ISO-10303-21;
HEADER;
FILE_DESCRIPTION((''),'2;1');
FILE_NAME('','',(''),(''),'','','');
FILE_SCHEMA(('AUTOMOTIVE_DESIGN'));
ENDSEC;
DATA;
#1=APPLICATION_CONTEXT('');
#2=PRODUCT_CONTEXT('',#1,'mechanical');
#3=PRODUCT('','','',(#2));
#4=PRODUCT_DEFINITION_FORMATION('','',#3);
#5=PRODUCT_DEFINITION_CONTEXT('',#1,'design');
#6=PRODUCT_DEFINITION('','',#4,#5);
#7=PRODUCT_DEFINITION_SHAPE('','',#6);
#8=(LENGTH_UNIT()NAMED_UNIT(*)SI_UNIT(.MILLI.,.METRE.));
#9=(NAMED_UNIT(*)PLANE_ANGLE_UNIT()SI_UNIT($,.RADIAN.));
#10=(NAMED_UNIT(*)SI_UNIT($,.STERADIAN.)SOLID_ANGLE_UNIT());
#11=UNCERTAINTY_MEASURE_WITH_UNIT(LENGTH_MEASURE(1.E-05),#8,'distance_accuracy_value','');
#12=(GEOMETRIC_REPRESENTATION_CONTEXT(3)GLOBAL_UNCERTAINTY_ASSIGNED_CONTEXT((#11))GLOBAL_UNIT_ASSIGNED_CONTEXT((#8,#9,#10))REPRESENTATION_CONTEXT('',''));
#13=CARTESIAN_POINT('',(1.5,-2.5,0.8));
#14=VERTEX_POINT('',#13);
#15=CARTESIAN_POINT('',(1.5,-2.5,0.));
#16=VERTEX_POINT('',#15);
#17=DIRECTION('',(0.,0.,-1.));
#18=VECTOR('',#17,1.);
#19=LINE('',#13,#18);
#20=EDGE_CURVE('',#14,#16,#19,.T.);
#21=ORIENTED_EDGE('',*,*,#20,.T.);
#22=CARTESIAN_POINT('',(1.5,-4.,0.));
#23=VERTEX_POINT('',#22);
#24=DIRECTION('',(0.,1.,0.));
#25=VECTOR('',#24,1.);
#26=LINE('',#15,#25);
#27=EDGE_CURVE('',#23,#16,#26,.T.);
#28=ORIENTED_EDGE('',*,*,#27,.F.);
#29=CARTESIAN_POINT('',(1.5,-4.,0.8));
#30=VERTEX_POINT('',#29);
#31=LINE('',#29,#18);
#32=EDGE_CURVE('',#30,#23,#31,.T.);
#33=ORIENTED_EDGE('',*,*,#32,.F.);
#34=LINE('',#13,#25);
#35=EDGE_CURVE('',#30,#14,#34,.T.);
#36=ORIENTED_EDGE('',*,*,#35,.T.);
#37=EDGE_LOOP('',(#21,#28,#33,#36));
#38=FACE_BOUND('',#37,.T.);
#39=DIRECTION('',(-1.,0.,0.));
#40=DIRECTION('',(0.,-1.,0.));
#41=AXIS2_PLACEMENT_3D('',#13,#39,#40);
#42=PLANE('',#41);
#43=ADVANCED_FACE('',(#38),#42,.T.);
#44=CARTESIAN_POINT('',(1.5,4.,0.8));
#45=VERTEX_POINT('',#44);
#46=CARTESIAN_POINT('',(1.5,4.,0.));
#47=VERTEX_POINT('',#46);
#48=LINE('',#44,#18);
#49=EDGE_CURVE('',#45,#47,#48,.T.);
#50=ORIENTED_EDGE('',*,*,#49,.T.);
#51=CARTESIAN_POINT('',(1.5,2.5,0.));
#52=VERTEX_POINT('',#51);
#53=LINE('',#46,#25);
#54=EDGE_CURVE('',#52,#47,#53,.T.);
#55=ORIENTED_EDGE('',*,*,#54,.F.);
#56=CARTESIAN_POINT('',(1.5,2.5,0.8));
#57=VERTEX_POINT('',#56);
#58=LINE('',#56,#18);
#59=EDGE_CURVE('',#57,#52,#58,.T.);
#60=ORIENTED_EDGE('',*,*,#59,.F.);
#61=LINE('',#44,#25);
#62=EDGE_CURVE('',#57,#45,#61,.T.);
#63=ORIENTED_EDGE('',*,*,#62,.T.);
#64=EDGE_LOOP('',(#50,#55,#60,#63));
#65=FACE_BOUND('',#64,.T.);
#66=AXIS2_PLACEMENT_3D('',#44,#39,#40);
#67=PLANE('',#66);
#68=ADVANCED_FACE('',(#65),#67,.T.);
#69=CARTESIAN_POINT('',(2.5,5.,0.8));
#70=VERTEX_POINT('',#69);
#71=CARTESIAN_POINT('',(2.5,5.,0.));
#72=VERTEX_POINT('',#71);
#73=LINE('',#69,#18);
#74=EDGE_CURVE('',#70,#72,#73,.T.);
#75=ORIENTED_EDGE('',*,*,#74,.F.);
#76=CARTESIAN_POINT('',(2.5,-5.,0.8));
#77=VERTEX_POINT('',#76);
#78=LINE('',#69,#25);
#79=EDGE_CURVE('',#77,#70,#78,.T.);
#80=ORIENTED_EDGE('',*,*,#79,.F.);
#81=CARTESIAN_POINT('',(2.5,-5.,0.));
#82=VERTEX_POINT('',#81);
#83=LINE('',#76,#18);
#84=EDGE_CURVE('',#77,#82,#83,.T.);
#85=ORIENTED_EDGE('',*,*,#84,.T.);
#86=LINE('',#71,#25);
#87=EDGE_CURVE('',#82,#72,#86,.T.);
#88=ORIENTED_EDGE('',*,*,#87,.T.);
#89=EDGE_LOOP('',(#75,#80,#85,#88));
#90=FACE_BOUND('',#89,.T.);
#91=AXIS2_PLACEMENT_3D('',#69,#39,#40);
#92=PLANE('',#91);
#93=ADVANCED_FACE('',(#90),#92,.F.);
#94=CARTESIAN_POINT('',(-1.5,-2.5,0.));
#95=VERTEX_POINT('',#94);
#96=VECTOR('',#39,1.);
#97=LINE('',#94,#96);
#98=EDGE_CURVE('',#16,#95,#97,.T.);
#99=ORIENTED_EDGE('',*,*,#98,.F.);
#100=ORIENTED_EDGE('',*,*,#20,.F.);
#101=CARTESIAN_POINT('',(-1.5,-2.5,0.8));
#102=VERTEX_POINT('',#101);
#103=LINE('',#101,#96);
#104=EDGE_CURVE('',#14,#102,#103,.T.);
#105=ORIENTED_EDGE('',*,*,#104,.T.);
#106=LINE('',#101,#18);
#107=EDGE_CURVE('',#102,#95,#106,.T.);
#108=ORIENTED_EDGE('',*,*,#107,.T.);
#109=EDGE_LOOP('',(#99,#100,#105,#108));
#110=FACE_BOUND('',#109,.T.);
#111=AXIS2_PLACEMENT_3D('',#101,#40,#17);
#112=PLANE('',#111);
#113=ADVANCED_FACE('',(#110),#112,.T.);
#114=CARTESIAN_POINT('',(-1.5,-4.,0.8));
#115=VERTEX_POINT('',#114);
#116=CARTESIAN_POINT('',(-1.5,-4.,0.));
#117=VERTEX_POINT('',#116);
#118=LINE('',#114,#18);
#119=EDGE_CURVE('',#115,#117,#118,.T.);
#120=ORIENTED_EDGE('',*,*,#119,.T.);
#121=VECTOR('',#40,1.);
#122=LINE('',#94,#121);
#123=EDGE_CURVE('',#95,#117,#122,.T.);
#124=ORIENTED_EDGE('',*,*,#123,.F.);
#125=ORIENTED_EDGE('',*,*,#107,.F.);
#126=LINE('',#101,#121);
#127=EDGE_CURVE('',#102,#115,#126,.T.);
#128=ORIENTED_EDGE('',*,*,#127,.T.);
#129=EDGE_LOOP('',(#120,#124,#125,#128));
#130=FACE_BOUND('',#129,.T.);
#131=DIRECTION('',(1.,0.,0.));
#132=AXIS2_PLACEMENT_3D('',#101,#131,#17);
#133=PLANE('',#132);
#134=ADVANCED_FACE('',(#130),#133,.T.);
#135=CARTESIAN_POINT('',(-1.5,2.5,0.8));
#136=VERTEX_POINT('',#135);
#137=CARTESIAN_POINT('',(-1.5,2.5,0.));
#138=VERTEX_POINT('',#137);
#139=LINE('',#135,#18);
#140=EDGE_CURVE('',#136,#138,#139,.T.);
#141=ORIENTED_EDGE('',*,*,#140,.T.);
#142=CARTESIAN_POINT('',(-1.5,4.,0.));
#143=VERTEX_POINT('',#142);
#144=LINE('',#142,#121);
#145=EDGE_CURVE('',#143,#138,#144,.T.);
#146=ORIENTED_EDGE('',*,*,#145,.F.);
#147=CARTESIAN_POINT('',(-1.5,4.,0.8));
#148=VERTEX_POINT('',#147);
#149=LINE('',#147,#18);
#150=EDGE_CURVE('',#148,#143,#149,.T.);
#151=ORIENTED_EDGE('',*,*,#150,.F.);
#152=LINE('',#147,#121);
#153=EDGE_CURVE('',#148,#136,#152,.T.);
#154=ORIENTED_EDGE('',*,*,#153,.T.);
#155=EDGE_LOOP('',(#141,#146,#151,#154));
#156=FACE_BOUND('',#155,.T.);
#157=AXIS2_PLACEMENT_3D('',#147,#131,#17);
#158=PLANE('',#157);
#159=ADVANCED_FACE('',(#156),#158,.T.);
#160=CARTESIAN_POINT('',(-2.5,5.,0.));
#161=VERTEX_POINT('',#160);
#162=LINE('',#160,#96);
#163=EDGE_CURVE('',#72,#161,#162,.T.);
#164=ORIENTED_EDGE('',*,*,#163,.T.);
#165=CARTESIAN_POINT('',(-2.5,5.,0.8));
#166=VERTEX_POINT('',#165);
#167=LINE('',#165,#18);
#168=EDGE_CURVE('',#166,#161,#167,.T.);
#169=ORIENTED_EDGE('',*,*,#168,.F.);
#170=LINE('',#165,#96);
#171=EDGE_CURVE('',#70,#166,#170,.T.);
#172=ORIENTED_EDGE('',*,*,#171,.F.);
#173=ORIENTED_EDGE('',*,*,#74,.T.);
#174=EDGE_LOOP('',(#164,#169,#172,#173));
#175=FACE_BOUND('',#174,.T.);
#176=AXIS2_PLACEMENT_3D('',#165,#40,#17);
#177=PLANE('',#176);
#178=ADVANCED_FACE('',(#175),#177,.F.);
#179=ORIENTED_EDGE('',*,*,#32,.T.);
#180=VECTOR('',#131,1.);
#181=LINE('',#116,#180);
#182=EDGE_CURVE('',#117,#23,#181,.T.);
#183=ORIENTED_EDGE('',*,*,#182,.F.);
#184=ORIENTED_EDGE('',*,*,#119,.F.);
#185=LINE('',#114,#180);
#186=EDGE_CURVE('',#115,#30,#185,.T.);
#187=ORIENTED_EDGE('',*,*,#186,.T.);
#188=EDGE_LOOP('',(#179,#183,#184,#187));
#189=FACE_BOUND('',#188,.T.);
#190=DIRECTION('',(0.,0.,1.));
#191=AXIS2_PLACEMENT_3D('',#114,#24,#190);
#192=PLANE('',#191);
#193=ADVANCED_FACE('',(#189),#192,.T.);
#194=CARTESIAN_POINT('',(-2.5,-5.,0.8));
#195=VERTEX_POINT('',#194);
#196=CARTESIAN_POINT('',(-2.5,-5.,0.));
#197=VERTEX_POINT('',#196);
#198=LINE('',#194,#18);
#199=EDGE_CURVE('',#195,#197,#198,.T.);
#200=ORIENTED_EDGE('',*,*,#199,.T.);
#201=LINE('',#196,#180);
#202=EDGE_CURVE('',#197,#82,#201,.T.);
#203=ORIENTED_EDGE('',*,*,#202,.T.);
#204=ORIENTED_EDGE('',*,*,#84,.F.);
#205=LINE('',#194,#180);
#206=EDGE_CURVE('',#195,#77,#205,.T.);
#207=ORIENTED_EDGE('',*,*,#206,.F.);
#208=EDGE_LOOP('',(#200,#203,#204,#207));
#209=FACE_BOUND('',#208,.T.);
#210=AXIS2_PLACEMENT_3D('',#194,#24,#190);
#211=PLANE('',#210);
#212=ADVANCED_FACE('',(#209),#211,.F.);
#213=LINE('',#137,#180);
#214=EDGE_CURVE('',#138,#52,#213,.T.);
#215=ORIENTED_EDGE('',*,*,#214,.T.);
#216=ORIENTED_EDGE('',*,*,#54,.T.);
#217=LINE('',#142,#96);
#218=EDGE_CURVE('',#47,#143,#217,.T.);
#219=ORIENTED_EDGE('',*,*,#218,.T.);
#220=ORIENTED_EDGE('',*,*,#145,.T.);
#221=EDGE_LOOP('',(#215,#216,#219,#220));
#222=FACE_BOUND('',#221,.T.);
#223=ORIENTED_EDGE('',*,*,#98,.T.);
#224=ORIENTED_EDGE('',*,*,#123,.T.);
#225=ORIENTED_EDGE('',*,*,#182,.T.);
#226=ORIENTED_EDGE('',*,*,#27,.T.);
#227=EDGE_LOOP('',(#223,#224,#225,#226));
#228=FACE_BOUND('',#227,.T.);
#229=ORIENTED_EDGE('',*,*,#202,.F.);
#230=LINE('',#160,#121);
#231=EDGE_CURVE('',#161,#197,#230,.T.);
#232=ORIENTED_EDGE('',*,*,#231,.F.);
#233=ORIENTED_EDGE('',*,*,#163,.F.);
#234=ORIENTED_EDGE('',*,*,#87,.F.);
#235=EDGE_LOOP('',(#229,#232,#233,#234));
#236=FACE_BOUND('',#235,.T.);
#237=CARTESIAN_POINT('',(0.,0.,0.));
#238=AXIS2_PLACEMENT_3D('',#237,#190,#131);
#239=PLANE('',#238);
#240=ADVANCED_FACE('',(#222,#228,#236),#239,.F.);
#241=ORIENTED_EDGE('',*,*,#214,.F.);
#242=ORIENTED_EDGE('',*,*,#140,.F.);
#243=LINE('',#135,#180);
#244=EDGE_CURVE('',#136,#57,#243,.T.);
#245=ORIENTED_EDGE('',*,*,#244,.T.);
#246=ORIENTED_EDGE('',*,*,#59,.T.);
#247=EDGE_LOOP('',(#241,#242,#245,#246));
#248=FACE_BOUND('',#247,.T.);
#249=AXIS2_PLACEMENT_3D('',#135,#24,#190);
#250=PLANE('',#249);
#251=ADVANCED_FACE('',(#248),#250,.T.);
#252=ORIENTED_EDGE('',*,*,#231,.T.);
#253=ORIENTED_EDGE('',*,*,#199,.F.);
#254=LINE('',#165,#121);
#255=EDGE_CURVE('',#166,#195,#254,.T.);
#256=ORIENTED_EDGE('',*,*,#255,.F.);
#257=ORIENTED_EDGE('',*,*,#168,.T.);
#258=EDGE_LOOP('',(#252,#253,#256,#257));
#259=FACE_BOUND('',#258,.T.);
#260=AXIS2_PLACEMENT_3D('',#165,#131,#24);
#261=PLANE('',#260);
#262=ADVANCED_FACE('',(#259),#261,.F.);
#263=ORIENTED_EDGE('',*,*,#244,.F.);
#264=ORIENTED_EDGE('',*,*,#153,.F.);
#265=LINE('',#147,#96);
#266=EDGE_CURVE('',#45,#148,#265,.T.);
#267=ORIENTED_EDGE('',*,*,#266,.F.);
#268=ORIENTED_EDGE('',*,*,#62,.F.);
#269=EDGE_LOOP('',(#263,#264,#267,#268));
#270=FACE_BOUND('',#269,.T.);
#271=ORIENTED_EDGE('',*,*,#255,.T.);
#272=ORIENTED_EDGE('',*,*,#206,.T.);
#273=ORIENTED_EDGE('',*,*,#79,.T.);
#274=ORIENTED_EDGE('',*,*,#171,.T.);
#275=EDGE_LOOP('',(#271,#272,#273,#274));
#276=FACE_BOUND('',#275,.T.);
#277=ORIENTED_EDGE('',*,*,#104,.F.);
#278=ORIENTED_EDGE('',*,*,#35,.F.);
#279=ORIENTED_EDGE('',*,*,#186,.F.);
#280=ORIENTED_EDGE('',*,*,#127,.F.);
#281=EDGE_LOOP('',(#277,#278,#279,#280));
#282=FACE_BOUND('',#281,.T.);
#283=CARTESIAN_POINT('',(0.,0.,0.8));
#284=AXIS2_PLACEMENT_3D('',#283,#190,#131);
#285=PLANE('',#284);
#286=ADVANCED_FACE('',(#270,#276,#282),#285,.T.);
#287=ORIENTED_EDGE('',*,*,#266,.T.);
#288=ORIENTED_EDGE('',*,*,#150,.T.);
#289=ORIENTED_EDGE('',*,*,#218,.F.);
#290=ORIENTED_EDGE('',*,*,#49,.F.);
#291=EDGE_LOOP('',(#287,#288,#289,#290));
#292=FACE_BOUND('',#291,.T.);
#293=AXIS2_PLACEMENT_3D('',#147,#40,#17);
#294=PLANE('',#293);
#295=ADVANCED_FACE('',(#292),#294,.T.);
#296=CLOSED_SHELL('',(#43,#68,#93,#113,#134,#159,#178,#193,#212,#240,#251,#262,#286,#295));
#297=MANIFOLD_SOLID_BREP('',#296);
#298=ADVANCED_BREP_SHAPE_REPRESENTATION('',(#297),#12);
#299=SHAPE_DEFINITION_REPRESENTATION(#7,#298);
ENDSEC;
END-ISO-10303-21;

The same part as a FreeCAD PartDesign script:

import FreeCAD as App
import Part
import Sketcher

V = App.Vector

doc = App.newDocument("Part")
body = doc.addObject("PartDesign::Body", "Body")

# Sketch on XY plane
sketch1 = body.newObject("Sketcher::SketchObject", "Sketch")
sketch1.AttachmentSupport = (doc.getObject("XY_Plane"), [""])
sketch1.MapMode = "FlatFace"
sketch1.addGeometry([
    Part.LineSegment(V(-2.5, 5, 0), V(-2.5, -5, 0)),  # 0
    Part.LineSegment(V(-2.5, -5, 0), V(2.5, -5, 0)),  # 1
    Part.LineSegment(V(2.5, -5, 0), V(2.5, 5, 0)),  # 2
    Part.LineSegment(V(2.5, 5, 0), V(-2.5, 5, 0)),  # 3
    Part.LineSegment(V(1.5, -4, 0), V(-1.5, -4, 0)),  # 4
    Part.LineSegment(V(-1.5, -4, 0), V(-1.5, -2.5, 0)),  # 5
    Part.LineSegment(V(-1.5, -2.5, 0), V(1.5, -2.5, 0)),  # 6
    Part.LineSegment(V(1.5, -2.5, 0), V(1.5, -4, 0)),  # 7
    Part.LineSegment(V(1.5, 2.5, 0), V(-1.5, 2.5, 0)),  # 8
    Part.LineSegment(V(-1.5, 2.5, 0), V(-1.5, 4, 0)),  # 9
    Part.LineSegment(V(-1.5, 4, 0), V(1.5, 4, 0)),  # 10
    Part.LineSegment(V(1.5, 4, 0), V(1.5, 2.5, 0)),  # 11
], False)
sketch1.addConstraint([
    Sketcher.Constraint("Coincident", 0, 2, 1, 1),
    Sketcher.Constraint("Coincident", 1, 2, 2, 1),
    Sketcher.Constraint("Coincident", 2, 2, 3, 1),
    Sketcher.Constraint("Coincident", 3, 2, 0, 1),
    Sketcher.Constraint("Coincident", 4, 2, 5, 1),
    Sketcher.Constraint("Coincident", 5, 2, 6, 1),
    Sketcher.Constraint("Coincident", 6, 2, 7, 1),
    Sketcher.Constraint("Coincident", 7, 2, 4, 1),
    Sketcher.Constraint("Coincident", 8, 2, 9, 1),
    Sketcher.Constraint("Coincident", 9, 2, 10, 1),
    Sketcher.Constraint("Coincident", 10, 2, 11, 1),
    Sketcher.Constraint("Coincident", 11, 2, 8, 1),
    Sketcher.Constraint("Vertical", 0),
    Sketcher.Constraint("Horizontal", 1),
    Sketcher.Constraint("Vertical", 2),
    Sketcher.Constraint("Horizontal", 3),
    Sketcher.Constraint("Horizontal", 4),
    Sketcher.Constraint("Vertical", 5),
    Sketcher.Constraint("Horizontal", 6),
    Sketcher.Constraint("Vertical", 7),
    Sketcher.Constraint("Horizontal", 8),
    Sketcher.Constraint("Vertical", 9),
    Sketcher.Constraint("Horizontal", 10),
    Sketcher.Constraint("Vertical", 11),
    Sketcher.Constraint("Symmetric", 0, 2, 2, 2, -1, 1),
    Sketcher.Constraint("Symmetric", 6, 2, 8, 2, -1, 1),
    Sketcher.Constraint("Symmetric", 4, 2, 10, 2, -1, 1),
    Sketcher.Constraint("Vertical", 5, 2, 8, 2),
    Sketcher.Constraint("DistanceX", 1, 1, 1, 2, 5.0),
    Sketcher.Constraint("DistanceX", 4, 2, 4, 1, 3.0),
    Sketcher.Constraint("DistanceY", 0, 2, 0, 1, 10.0),
    Sketcher.Constraint("DistanceY", 5, 1, 5, 2, 1.5),
    Sketcher.Constraint("DistanceY", 4, 2, -1, 1, 4.0),
])
pad1 = body.newObject("PartDesign::Pad", "Pad")
pad1.Profile = sketch1
pad1.Length = 0.8

doc.recompute()
